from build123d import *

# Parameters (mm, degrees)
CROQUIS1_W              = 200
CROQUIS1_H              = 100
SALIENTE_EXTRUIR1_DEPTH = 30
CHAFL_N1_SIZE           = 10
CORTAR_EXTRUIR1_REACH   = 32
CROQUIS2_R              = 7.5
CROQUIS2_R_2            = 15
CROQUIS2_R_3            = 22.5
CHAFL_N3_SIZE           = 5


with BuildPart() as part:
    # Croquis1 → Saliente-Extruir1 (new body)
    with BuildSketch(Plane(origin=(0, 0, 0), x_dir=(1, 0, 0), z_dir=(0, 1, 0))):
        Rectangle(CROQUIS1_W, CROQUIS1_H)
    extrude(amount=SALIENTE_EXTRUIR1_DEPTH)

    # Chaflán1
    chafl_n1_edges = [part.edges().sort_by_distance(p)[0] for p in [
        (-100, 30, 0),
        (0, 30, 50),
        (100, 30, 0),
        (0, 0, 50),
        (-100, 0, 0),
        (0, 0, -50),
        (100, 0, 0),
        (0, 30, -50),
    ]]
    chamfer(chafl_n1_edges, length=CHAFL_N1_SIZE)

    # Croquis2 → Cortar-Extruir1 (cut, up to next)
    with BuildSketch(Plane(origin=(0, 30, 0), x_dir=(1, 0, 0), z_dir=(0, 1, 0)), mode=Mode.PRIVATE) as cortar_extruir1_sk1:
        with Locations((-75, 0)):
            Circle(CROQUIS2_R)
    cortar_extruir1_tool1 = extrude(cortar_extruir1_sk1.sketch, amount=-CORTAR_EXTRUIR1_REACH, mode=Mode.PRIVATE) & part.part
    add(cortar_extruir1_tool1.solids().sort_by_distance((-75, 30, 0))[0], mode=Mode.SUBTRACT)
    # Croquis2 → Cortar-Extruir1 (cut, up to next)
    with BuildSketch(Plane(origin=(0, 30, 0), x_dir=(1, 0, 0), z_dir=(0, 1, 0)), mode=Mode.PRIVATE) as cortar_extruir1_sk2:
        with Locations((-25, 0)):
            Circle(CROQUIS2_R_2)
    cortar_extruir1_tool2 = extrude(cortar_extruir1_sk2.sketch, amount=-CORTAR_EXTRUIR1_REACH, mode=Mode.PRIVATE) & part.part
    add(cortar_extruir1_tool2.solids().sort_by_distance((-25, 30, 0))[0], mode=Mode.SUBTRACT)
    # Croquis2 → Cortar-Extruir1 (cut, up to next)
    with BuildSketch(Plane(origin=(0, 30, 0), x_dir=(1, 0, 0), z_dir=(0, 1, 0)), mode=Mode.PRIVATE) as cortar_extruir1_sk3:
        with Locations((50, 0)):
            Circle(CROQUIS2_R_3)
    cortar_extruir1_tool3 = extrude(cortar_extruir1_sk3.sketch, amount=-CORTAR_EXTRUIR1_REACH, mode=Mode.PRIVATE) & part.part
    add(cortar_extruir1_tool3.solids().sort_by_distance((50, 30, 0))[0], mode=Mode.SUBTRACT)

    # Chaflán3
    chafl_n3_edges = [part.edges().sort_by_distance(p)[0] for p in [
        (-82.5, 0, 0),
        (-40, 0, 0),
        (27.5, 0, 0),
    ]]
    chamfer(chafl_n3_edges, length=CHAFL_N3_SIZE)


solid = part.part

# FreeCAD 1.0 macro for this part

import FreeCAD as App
import Part
import Sketcher

V = App.Vector


def edges_at(feature, points):
    """Names of the edges that pass closest to the given points."""
    edges = feature.Shape.Edges
    near = lambda p: min(range(len(edges)), key=lambda i: edges[i].distToShape(Part.Vertex(*p))[0])
    return sorted({f"Edge{near(p) + 1}" for p in points})

doc = App.newDocument("Part")
body = doc.addObject("PartDesign::Body", "Body")

# Sketch on XZ plane
sketch1 = body.newObject("Sketcher::SketchObject", "Sketch")
sketch1.AttachmentSupport = (doc.getObject("XZ_Plane"), [""])
sketch1.MapMode = "FlatFace"
sketch1.addGeometry([
    Part.LineSegment(V(-100, -50, 0), V(-100, 50, 0)),
    Part.LineSegment(V(-100, 50, 0), V(100, 50, 0)),
    Part.LineSegment(V(100, 50, 0), V(100, -50, 0)),
    Part.LineSegment(V(100, -50, 0), V(-100, -50, 0)),
], False)
sketch1.addConstraint([
    Sketcher.Constraint("Coincident", 0, 2, 1, 1),
    Sketcher.Constraint("Coincident", 1, 2, 2, 1),
    Sketcher.Constraint("Coincident", 2, 2, 3, 1),
    Sketcher.Constraint("Coincident", 3, 2, 0, 1),
    Sketcher.Constraint("Vertical", 0),
    Sketcher.Constraint("Horizontal", 1),
    Sketcher.Constraint("Vertical", 2),
    Sketcher.Constraint("Horizontal", 3),
    Sketcher.Constraint("Symmetric", 0, 2, 2, 2, -1, 1),
    Sketcher.Constraint("DistanceX", 1, 1, 1, 2, 200.0),
    Sketcher.Constraint("DistanceY", 0, 1, 0, 2, 100.0),
])
pad1 = body.newObject("PartDesign::Pad", "Pad")
pad1.Profile = sketch1
pad1.Length = 30
pad1.Reversed = True
doc.recompute()

chamfer = body.newObject("PartDesign::Chamfer", "Chamfer")
chamfer.Base = (pad1, edges_at(pad1, [
    (-100, 30, 0),
    (0, 30, 50),
    (100, 30, 0),
    (0, 0, 50),
    (-100, 0, 0),
    (0, 0, -50),
    (100, 0, 0),
    (0, 30, -50),
]))
chamfer.Size = 10

# Sketch on XZ plane
sketch2 = body.newObject("Sketcher::SketchObject", "Sketch001")
sketch2.AttachmentSupport = (doc.getObject("XZ_Plane"), [""])
sketch2.MapMode = "FlatFace"
sketch2.AttachmentOffset = App.Placement(V(0, 0, -30), App.Rotation())
sketch2.addGeometry(Part.Circle(V(-75, 0, 0), V(0, 0, 1), 7.5), False)
sketch2.addConstraint([
    Sketcher.Constraint("PointOnObject", 0, 3, -1),
    Sketcher.Constraint("Diameter", 0, 15.0),
    Sketcher.Constraint("DistanceX", 0, 3, -1, 1, 75.0),
])
pocket1 = body.newObject("PartDesign::Pocket", "Pocket")
pocket1.Profile = sketch2
pocket1.Type = "UpToFirst"
pocket1.Reversed = True

# Sketch on XZ plane
sketch3 = body.newObject("Sketcher::SketchObject", "Sketch002")
sketch3.AttachmentSupport = (doc.getObject("XZ_Plane"), [""])
sketch3.MapMode = "FlatFace"
sketch3.AttachmentOffset = App.Placement(V(0, 0, -30), App.Rotation())
sketch3.addGeometry(Part.Circle(V(-25, 0, 0), V(0, 0, 1), 15), False)
sketch3.addConstraint([
    Sketcher.Constraint("PointOnObject", 0, 3, -1),
    Sketcher.Constraint("Diameter", 0, 30.0),
    Sketcher.Constraint("DistanceX", 0, 3, -1, 1, 25.0),
])
pocket2 = body.newObject("PartDesign::Pocket", "Pocket001")
pocket2.Profile = sketch3
pocket2.Type = "UpToFirst"
pocket2.Reversed = True

# Sketch on XZ plane
sketch4 = body.newObject("Sketcher::SketchObject", "Sketch003")
sketch4.AttachmentSupport = (doc.getObject("XZ_Plane"), [""])
sketch4.MapMode = "FlatFace"
sketch4.AttachmentOffset = App.Placement(V(0, 0, -30), App.Rotation())
sketch4.addGeometry(Part.Circle(V(50, 0, 0), V(0, 0, 1), 22.5), False)
sketch4.addConstraint([
    Sketcher.Constraint("PointOnObject", 0, 3, -1),
    Sketcher.Constraint("Diameter", 0, 45.0),
    Sketcher.Constraint("DistanceX", -1, 1, 0, 3, 50.0),
])
pocket3 = body.newObject("PartDesign::Pocket", "Pocket002")
pocket3.Profile = sketch4
pocket3.Type = "UpToFirst"
pocket3.Reversed = True
doc.recompute()

chamfer2 = body.newObject("PartDesign::Chamfer", "Chamfer001")
chamfer2.Base = (pocket3, edges_at(pocket3, [(-82.5, 0, 0), (-40, 0, 0), (27.5, 0, 0)]))
chamfer2.Size = 5

doc.recompute()
